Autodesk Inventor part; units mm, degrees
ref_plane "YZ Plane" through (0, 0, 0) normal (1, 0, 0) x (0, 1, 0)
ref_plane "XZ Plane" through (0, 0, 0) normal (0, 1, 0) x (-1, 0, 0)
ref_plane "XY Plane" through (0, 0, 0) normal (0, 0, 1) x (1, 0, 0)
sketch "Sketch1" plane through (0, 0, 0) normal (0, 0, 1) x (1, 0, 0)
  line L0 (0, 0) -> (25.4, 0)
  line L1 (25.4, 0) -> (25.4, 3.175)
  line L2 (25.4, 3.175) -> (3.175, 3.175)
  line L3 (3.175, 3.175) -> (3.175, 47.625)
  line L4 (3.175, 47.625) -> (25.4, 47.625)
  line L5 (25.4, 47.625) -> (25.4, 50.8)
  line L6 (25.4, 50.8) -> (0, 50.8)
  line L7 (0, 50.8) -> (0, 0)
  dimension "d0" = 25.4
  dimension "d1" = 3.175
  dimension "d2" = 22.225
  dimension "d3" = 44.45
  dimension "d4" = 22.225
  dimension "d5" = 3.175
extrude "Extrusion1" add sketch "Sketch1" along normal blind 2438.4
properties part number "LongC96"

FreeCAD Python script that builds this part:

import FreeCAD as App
import Part
import Sketcher
Q = App.Units.Quantity


def add_polygon(sketch, points):
    """Adds a closed chain of lines whose ends are joined by coincident constraints."""
    first, n = sketch.GeometryCount, len(points)
    for a, b in zip(points, points[1:] + points[:1]):
        sketch.addGeometry(Part.LineSegment(App.Vector(*a, 0), App.Vector(*b, 0)), False)
    for i in range(n):
        sketch.addConstraint(Sketcher.Constraint("Coincident", first + i, 2, first + (i + 1) % n, 1))

doc = App.newDocument("Part")
body = doc.addObject("PartDesign::Body", "Body")

# Sketch on XY plane
sketch1 = body.newObject("Sketcher::SketchObject", "Sketch")
sketch1.AttachmentSupport = (doc.getObject("XY_Plane"), [""])
sketch1.MapMode = "FlatFace"
add_polygon(sketch1, [(0, 50.8), (0, 0), (25.4, 0), (25.4, 3.175), (3.175, 3.175), (3.175, 47.625), (25.4, 47.625), (25.4, 50.8)])  # lines 0-7
sketch1.addConstraint(Sketcher.Constraint("Vertical", 0))
sketch1.addConstraint(Sketcher.Constraint("Horizontal", 1))
sketch1.addConstraint(Sketcher.Constraint("Vertical", 2))
sketch1.addConstraint(Sketcher.Constraint("Horizontal", 3))
sketch1.addConstraint(Sketcher.Constraint("Vertical", 4))
sketch1.addConstraint(Sketcher.Constraint("Horizontal", 5))
sketch1.addConstraint(Sketcher.Constraint("Vertical", 6))
sketch1.addConstraint(Sketcher.Constraint("Horizontal", 7))
sketch1.addConstraint(Sketcher.Constraint("Coincident", 0, 2, -1, 1))
sketch1.addConstraint(Sketcher.Constraint("Vertical", 2, 2, 5, 2))
sketch1.addConstraint(Sketcher.Constraint("Equal", 2, 6))
sketch1.addConstraint(Sketcher.Constraint("DistanceX", 1, 1, 1, 2, Q("1 in")))
sketch1.addConstraint(Sketcher.Constraint("DistanceY", 4, 1, 4, 2, Q("1.75 in")))
sketch1.addConstraint(Sketcher.Constraint("DistanceX", 3, 2, 3, 1, Q("0.875 in")))
sketch1.addConstraint(Sketcher.Constraint("DistanceY", 0, 2, 0, 1, Q("2 in")))
pad1 = body.newObject("PartDesign::Pad", "Pad")
pad1.Profile = sketch1
pad1.Length = Q("96 in")

doc.recompute()
